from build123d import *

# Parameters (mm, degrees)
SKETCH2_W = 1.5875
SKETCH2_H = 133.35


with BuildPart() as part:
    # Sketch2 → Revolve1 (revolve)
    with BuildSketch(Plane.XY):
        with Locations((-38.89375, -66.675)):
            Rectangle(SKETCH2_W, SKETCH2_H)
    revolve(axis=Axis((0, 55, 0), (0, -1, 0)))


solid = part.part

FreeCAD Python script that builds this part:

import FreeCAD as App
import Part
import Sketcher

V = App.Vector
Q = App.Units.Quantity


def add_polygon(sketch, points):
    """Adds a closed chain of lines whose ends are joined by coincident constraints."""
    first, n = sketch.GeometryCount, len(points)
    for a, b in zip(points, points[1:] + points[:1]):
        sketch.addGeometry(Part.LineSegment(App.Vector(*a, 0), App.Vector(*b, 0)), False)
    for i in range(n):
        sketch.addConstraint(Sketcher.Constraint("Coincident", first + i, 2, first + (i + 1) % n, 1))

doc = App.newDocument("Part")
params = doc.addObject("Spreadsheet::Sheet", "Params")
for row, (alias, value) in enumerate([
    ("sketch1_height", "5.25 in"),
    ("sketch1_width", "0.0625 in"),
    ("revolution_angle", "360 deg"),
], start=1):
    params.set(f"A{row}", alias)
    params.set(f"B{row}", "=" + value)
    params.setAlias(f"B{row}", alias)

body = doc.addObject("PartDesign::Body", "Body")

sketch1 = doc.addObject("Sketcher::SketchObject", "Sketch")
body.addObject(sketch1)
sketch1.AttachmentSupport = (doc.XY_Plane, [""])
sketch1.MapMode = "FlatFace"
add_polygon(sketch1, [(-39.7, 0), (-39.7, -133.3), (-38.1, -133.3), (-38.1, 0)])
sketch1.addConstraint([
    Sketcher.Constraint("Vertical", 0),
    Sketcher.Constraint("Horizontal", 1),
    Sketcher.Constraint("Vertical", 2),
    Sketcher.Constraint("Horizontal", 3),
    Sketcher.Constraint("PointOnObject", 2, 2, -1),
    Sketcher.Constraint("DistanceY", 0, 2, 0, 1, Q("5.25 in")),
    Sketcher.Constraint("DistanceX", 1, 2, -1, 1, Q("1.5 in")),
    Sketcher.Constraint("DistanceX", 1, 1, 1, 2, Q("0.0625 in")),
])
sketch1.setExpression("Constraints[9]", "Params.sketch1_height")
sketch1.setExpression("Constraints[11]", "Params.sketch1_width")
revolution = doc.addObject("PartDesign::Revolution", "Revolution")
body.addObject(revolution)
revolution.Profile = sketch1
revolution.ReferenceAxis = (sketch1, ["V_Axis"])
revolution.setExpression("Angle", "Params.revolution_angle")

doc.recompute()
